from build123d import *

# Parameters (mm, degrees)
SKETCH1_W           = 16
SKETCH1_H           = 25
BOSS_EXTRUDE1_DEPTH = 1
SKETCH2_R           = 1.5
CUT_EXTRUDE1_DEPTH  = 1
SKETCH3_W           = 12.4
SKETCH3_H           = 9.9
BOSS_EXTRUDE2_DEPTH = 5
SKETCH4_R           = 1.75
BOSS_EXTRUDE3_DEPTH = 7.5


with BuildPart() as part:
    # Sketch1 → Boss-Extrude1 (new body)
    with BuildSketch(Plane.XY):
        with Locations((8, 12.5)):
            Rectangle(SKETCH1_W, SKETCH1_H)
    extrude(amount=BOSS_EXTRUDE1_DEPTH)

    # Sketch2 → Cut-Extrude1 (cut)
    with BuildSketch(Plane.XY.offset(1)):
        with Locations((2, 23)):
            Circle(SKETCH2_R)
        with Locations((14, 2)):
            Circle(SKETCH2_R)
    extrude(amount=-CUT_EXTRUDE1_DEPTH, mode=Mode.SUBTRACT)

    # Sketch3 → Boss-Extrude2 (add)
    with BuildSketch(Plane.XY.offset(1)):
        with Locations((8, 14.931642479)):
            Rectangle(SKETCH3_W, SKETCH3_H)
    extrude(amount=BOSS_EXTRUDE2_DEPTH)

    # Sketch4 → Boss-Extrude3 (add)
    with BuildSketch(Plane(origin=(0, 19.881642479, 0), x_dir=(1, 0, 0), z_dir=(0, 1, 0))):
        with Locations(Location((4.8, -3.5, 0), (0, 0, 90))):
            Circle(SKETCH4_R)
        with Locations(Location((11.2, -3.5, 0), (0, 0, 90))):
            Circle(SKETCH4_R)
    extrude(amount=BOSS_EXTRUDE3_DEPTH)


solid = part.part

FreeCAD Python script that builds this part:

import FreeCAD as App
import Part
import Sketcher


def add_polygon(sketch, points):
    """Adds a closed chain of lines whose ends are joined by coincident constraints."""
    first, n = sketch.GeometryCount, len(points)
    for a, b in zip(points, points[1:] + points[:1]):
        sketch.addGeometry(Part.LineSegment(App.Vector(*a, 0), App.Vector(*b, 0)), False)
    for i in range(n):
        sketch.addConstraint(Sketcher.Constraint("Coincident", first + i, 2, first + (i + 1) % n, 1))

doc = App.newDocument("Part")
body = doc.addObject("PartDesign::Body", "Body")

# Sketch on XY plane
sketch1 = doc.addObject("Sketcher::SketchObject", "Sketch")
body.addObject(sketch1)
sketch1.AttachmentSupport = (doc.XY_Plane, [""])
sketch1.MapMode = "FlatFace"
add_polygon(sketch1, [(0, 25), (0, 0), (16, 0), (16, 25)])  # lines 0-3
sketch1.addConstraint([
    Sketcher.Constraint("Vertical", 0),
    Sketcher.Constraint("Horizontal", 1),
    Sketcher.Constraint("Vertical", 2),
    Sketcher.Constraint("Horizontal", 3),
    Sketcher.Constraint("Coincident", 0, 2, -1, 1),
    Sketcher.Constraint("DistanceX", 1, 1, 1, 2, 16.0),
    Sketcher.Constraint("DistanceY", 0, 2, 0, 1, 25.0),
])
pad1 = doc.addObject("PartDesign::Pad", "Pad")
body.addObject(pad1)
pad1.Profile = sketch1
pad1.Length = 1

# Sketch on XY plane
sketch2 = doc.addObject("Sketcher::SketchObject", "Sketch001")
body.addObject(sketch2)
sketch2.AttachmentSupport = (doc.XY_Plane, [""])
sketch2.MapMode = "FlatFace"
sketch2.AttachmentOffset = App.Placement(App.Vector(0, 0, 1), App.Rotation())
sketch2.addGeometry([
    Part.Circle(App.Vector(2, 23, 0), App.Vector(0, 0, 1), 1.5),
    Part.Circle(App.Vector(14, 2, 0), App.Vector(0, 0, 1), 1.5),
], False)
sketch2.addConstraint([
    Sketcher.Constraint("Equal", 0, 1),
    Sketcher.Constraint("Diameter", 0, 3.0),
    Sketcher.Constraint("DistanceX", -1, 1, 0, 3, 2.0),
    Sketcher.Constraint("DistanceY", -1, 1, 0, 3, 23.0),
    Sketcher.Constraint("DistanceX", -1, 1, 1, 3, 14.0),
    Sketcher.Constraint("DistanceY", -1, 1, 1, 3, 2.0),
])
pocket1 = doc.addObject("PartDesign::Pocket", "Pocket")
body.addObject(pocket1)
pocket1.Profile = sketch2
pocket1.Length = 1

# Sketch on XY plane
sketch3 = doc.addObject("Sketcher::SketchObject", "Sketch002")
body.addObject(sketch3)
sketch3.AttachmentSupport = (doc.XY_Plane, [""])
sketch3.MapMode = "FlatFace"
sketch3.AttachmentOffset = App.Placement(App.Vector(0, 0, 1), App.Rotation())
add_polygon(sketch3, [(1.8, 19.881642), (1.8, 9.981642), (14.2, 9.981642), (14.2, 19.881642)])  # lines 0-3
sketch3.addConstraint([
    Sketcher.Constraint("Vertical", 0),
    Sketcher.Constraint("Horizontal", 1),
    Sketcher.Constraint("Vertical", 2),
    Sketcher.Constraint("Horizontal", 3),
    Sketcher.Constraint("DistanceX", 1, 1, 1, 2, 12.4),
    Sketcher.Constraint("DistanceY", 0, 2, 0, 1, 9.9),
    Sketcher.Constraint("DistanceX", -1, 1, 0, 2, 1.8),
    Sketcher.Constraint("DistanceY", -1, 1, 0, 2, 9.981642),
])
pad2 = doc.addObject("PartDesign::Pad", "Pad001")
body.addObject(pad2)
pad2.Profile = sketch3
pad2.Length = 5

# Sketch on XZ plane
sketch4 = doc.addObject("Sketcher::SketchObject", "Sketch003")
body.addObject(sketch4)
sketch4.AttachmentSupport = (doc.XZ_Plane, [""])
sketch4.MapMode = "FlatFace"
sketch4.AttachmentOffset = App.Placement(App.Vector(0, 0, -19.881642), App.Rotation())
sketch4.addGeometry([
    Part.Circle(App.Vector(4.8, 3.5, 0), App.Vector(0, 0, 1), 1.75),
    Part.Circle(App.Vector(11.2, 3.5, 0), App.Vector(0, 0, 1), 1.75),
], False)
sketch4.addConstraint([
    Sketcher.Constraint("Equal", 0, 1),
    Sketcher.Constraint("Horizontal", 0, 3, 1, 3),
    Sketcher.Constraint("Diameter", 0, 3.5),
    Sketcher.Constraint("DistanceX", -1, 1, 0, 3, 4.8),
    Sketcher.Constraint("DistanceY", -1, 1, 0, 3, 3.5),
    Sketcher.Constraint("DistanceX", -1, 1, 1, 3, 11.2),
])
pad3 = doc.addObject("PartDesign::Pad", "Pad002")
body.addObject(pad3)
pad3.Profile = sketch4
pad3.Length = 7.5
pad3.Reversed = True

doc.recompute()
